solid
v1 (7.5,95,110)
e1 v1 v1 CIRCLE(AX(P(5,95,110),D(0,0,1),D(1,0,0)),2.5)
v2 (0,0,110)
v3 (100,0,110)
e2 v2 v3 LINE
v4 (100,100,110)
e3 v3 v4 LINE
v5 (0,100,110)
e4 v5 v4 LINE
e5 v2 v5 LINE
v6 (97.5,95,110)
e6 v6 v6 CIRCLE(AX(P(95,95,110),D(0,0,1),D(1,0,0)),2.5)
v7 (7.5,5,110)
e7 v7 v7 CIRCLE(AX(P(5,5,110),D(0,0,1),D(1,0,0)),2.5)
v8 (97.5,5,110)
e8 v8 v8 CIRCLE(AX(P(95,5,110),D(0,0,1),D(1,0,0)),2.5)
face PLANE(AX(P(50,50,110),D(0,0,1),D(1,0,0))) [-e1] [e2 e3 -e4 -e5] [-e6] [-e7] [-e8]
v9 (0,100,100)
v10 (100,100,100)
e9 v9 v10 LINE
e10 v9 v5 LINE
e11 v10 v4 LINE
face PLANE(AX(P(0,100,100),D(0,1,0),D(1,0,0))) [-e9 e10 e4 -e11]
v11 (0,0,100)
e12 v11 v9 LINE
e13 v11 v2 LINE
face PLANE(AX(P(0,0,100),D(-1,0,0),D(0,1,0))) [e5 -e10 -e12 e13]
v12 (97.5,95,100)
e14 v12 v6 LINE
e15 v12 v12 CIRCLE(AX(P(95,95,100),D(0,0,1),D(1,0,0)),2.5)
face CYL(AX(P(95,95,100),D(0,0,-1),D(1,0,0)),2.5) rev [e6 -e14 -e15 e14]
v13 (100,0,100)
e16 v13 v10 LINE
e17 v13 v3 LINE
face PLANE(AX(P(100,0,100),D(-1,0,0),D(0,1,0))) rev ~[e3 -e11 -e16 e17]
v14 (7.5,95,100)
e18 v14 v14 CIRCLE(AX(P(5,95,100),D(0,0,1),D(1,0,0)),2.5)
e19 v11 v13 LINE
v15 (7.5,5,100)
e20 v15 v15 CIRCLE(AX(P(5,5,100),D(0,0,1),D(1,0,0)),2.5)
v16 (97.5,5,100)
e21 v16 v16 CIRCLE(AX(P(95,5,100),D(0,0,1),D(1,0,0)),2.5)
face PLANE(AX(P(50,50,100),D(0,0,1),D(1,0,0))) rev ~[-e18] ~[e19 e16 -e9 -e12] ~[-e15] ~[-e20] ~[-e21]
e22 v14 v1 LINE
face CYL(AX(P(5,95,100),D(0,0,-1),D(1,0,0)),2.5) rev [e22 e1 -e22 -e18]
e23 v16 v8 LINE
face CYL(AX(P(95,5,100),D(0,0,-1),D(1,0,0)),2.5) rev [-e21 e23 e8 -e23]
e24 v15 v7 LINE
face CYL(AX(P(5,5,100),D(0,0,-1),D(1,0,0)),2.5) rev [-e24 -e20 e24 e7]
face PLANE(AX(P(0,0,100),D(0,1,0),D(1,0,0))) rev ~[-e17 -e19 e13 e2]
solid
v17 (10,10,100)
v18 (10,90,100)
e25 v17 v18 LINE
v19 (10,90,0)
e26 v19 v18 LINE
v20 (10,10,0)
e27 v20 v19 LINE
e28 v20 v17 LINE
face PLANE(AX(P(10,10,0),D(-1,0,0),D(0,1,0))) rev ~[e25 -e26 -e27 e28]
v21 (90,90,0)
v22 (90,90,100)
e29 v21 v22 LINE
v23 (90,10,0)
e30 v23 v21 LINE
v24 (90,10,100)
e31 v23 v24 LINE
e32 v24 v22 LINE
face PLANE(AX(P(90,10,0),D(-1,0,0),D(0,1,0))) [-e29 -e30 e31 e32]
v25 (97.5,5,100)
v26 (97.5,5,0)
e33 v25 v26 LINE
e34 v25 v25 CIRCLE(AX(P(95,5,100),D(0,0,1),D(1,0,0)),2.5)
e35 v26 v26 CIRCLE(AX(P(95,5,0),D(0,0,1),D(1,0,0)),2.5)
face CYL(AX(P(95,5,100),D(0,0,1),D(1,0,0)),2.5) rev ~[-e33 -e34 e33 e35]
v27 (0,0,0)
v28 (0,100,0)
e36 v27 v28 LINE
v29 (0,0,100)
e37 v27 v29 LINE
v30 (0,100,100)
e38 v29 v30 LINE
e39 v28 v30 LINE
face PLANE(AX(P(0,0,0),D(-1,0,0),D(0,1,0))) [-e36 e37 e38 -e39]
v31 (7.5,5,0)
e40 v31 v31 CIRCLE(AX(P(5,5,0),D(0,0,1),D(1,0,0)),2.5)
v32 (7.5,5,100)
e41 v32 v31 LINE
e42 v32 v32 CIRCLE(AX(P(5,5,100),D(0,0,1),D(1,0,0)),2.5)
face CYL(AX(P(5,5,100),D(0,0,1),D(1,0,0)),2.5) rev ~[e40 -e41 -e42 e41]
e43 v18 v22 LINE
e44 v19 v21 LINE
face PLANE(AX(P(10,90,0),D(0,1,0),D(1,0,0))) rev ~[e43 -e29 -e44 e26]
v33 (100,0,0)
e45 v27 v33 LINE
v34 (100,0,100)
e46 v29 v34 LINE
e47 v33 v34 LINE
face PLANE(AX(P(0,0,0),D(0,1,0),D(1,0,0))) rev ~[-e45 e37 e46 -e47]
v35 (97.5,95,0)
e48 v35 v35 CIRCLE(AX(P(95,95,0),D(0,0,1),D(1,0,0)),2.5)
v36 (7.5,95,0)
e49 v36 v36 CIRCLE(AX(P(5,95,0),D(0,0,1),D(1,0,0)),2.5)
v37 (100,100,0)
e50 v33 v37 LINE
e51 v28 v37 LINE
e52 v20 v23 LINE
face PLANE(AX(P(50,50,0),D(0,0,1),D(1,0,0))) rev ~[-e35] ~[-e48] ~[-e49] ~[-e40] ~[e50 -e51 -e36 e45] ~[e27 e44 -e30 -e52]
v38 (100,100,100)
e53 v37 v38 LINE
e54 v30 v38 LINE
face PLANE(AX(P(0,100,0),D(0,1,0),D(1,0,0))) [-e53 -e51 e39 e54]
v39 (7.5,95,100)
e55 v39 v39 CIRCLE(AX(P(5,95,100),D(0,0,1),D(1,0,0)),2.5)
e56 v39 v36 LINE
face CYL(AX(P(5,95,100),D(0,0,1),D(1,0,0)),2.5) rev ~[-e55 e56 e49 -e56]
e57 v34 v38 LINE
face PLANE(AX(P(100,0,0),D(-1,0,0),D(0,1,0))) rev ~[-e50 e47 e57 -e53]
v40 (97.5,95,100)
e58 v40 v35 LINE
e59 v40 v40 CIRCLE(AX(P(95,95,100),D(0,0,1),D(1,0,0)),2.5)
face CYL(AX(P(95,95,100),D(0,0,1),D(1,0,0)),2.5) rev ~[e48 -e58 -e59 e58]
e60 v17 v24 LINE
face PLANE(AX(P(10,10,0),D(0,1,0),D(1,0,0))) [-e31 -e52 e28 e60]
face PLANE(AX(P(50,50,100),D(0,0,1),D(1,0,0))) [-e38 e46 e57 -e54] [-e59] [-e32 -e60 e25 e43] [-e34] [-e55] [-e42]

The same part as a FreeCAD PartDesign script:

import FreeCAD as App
import Part
import Sketcher

V = App.Vector


def add_polygon(sketch, points):
    """Adds a closed chain of lines whose ends are joined by coincident constraints."""
    first, n = sketch.GeometryCount, len(points)
    for a, b in zip(points, points[1:] + points[:1]):
        sketch.addGeometry(Part.LineSegment(App.Vector(*a, 0), App.Vector(*b, 0)), False)
    for i in range(n):
        sketch.addConstraint(Sketcher.Constraint("Coincident", first + i, 2, first + (i + 1) % n, 1))

doc = App.newDocument("Part")
params = doc.addObject("Spreadsheet::Sheet", "Params")
for row, (alias, value) in enumerate([
    ("sketch1_width", "100 mm"),
    ("sketch1_width2", "80 mm"),
    ("pad1_length", "100 mm"),
    ("sketch2_diameter", "5 mm"),
    ("sketch3_diameter", "5 mm"),
    ("sketch3_width", "100 mm"),
    ("pad2_length", "10 mm"),
], start=1):
    params.set(f"A{row}", alias)
    params.set(f"B{row}", "=" + value)
    params.setAlias(f"B{row}", alias)

body = doc.addObject("PartDesign::Body", "Body")

# Sketch on XY plane
sketch1 = body.newObject("Sketcher::SketchObject", "Sketch")
sketch1.AttachmentSupport = (doc.getObject("XY_Plane"), [""])
sketch1.MapMode = "FlatFace"
add_polygon(sketch1, [(0, 100), (0, 0), (100, 0), (100, 100)])  # lines 0-3
add_polygon(sketch1, [(90, 10), (10, 10), (10, 90), (90, 90)])  # lines 4-7
sketch1.addConstraint(Sketcher.Constraint("Vertical", 0))
sketch1.addConstraint(Sketcher.Constraint("Horizontal", 1))
sketch1.addConstraint(Sketcher.Constraint("Vertical", 2))
sketch1.addConstraint(Sketcher.Constraint("Horizontal", 3))
sketch1.addConstraint(Sketcher.Constraint("Horizontal", 4))
sketch1.addConstraint(Sketcher.Constraint("Vertical", 5))
sketch1.addConstraint(Sketcher.Constraint("Horizontal", 6))
sketch1.addConstraint(Sketcher.Constraint("Vertical", 7))
sketch1.addConstraint(Sketcher.Constraint("Coincident", 0, 2, -1, 1))
sketch1.addConstraint(Sketcher.Constraint("Equal", 3, 0))
sketch1.addConstraint(Sketcher.Constraint("Equal", 6, 5))
sketch1.addConstraint(Sketcher.Constraint("DistanceX", 1, 1, 1, 2, 100.0))
sketch1.addConstraint(Sketcher.Constraint("DistanceX", 4, 2, 4, 1, 80.0))
sketch1.addConstraint(Sketcher.Constraint("DistanceX", -1, 1, 4, 2, 10.0))
sketch1.addConstraint(Sketcher.Constraint("DistanceY", -1, 1, 4, 2, 10.0))
sketch1.setExpression("Constraints[19]", "Params.sketch1_width")
sketch1.setExpression("Constraints[20]", "Params.sketch1_width2")
pad1 = body.newObject("PartDesign::Pad", "Pad")
pad1.Profile = sketch1
pad1.setExpression("Length", "Params.pad1_length")

# Sketch on XY plane
sketch2 = body.newObject("Sketcher::SketchObject", "Sketch001")
sketch2.AttachmentSupport = (doc.getObject("XY_Plane"), [""])
sketch2.MapMode = "FlatFace"
sketch2.AttachmentOffset = App.Placement(V(0, 0, 100), App.Rotation())
sketch2.addGeometry(Part.Circle(V(5, 95, 0), V(0, 0, 1), 2.5), False)
sketch2.addGeometry(Part.Circle(V(95, 95, 0), V(0, 0, 1), 2.5), False)
sketch2.addGeometry(Part.Circle(V(5, 5, 0), V(0, 0, 1), 2.5), False)
sketch2.addGeometry(Part.Circle(V(95, 5, 0), V(0, 0, 1), 2.5), False)
sketch2.addConstraint(Sketcher.Constraint("Equal", 0, 1))
sketch2.addConstraint(Sketcher.Constraint("Equal", 1, 2))
sketch2.addConstraint(Sketcher.Constraint("Equal", 2, 3))
sketch2.addConstraint(Sketcher.Constraint("Horizontal", 0, 3, 1, 3))
sketch2.addConstraint(Sketcher.Constraint("Horizontal", 2, 3, 3, 3))
sketch2.addConstraint(Sketcher.Constraint("Vertical", 0, 3, 2, 3))
sketch2.addConstraint(Sketcher.Constraint("Vertical", 1, 3, 3, 3))
sketch2.addConstraint(Sketcher.Constraint("Diameter", 0, 5.0))
sketch2.addConstraint(Sketcher.Constraint("DistanceX", -1, 1, 0, 3, 5.0))
sketch2.addConstraint(Sketcher.Constraint("DistanceY", -1, 1, 0, 3, 95.0))
sketch2.addConstraint(Sketcher.Constraint("DistanceX", -1, 1, 1, 3, 95.0))
sketch2.addConstraint(Sketcher.Constraint("DistanceY", -1, 1, 2, 3, 5.0))
sketch2.setExpression("Constraints[7]", "Params.sketch2_diameter")
pocket1 = body.newObject("PartDesign::Pocket", "Pocket")
pocket1.Profile = sketch2
pocket1.Type = "ThroughAll"
body2 = doc.addObject("PartDesign::Body", "Body001")

# Sketch on XY plane
sketch3 = body2.newObject("Sketcher::SketchObject", "Sketch002")
sketch3.AttachmentSupport = (doc.getObject("XY_Plane001"), [""])
sketch3.MapMode = "FlatFace"
sketch3.AttachmentOffset = App.Placement(V(0, 0, 100), App.Rotation())
add_polygon(sketch3, [(0, 100), (0, 0), (100, 0), (100, 100)])  # lines 0-3
sketch3.addGeometry(Part.Circle(V(5, 5, 0), V(0, 0, 1), 2.5), False)  # 4
sketch3.addGeometry(Part.Circle(V(95, 5, 0), V(0, 0, 1), 2.5), False)  # 5
sketch3.addGeometry(Part.Circle(V(5, 95, 0), V(0, 0, 1), 2.5), False)  # 6
sketch3.addGeometry(Part.Circle(V(95, 95, 0), V(0, 0, 1), 2.5), False)  # 7
sketch3.addConstraint(Sketcher.Constraint("Vertical", 0))
sketch3.addConstraint(Sketcher.Constraint("Horizontal", 1))
sketch3.addConstraint(Sketcher.Constraint("Vertical", 2))
sketch3.addConstraint(Sketcher.Constraint("Horizontal", 3))
sketch3.addConstraint(Sketcher.Constraint("Coincident", 0, 2, -1, 1))
sketch3.addConstraint(Sketcher.Constraint("Equal", 4, 5))
sketch3.addConstraint(Sketcher.Constraint("Equal", 5, 6))
sketch3.addConstraint(Sketcher.Constraint("Equal", 6, 7))
sketch3.addConstraint(Sketcher.Constraint("Horizontal", 4, 3, 5, 3))
sketch3.addConstraint(Sketcher.Constraint("Horizontal", 6, 3, 7, 3))
sketch3.addConstraint(Sketcher.Constraint("Vertical", 4, 3, 6, 3))
sketch3.addConstraint(Sketcher.Constraint("Vertical", 5, 3, 7, 3))
sketch3.addConstraint(Sketcher.Constraint("Equal", 3, 0))
sketch3.addConstraint(Sketcher.Constraint("Diameter", 4, 5.0))
sketch3.addConstraint(Sketcher.Constraint("DistanceX", 1, 1, 1, 2, 100.0))
sketch3.addConstraint(Sketcher.Constraint("DistanceX", -1, 1, 4, 3, 5.0))
sketch3.addConstraint(Sketcher.Constraint("DistanceY", -1, 1, 4, 3, 5.0))
sketch3.addConstraint(Sketcher.Constraint("DistanceX", -1, 1, 5, 3, 95.0))
sketch3.addConstraint(Sketcher.Constraint("DistanceY", -1, 1, 6, 3, 95.0))
sketch3.setExpression("Constraints[17]", "Params.sketch3_diameter")
sketch3.setExpression("Constraints[18]", "Params.sketch3_width")
pad2 = body2.newObject("PartDesign::Pad", "Pad001")
pad2.Profile = sketch3
pad2.setExpression("Length", "Params.pad2_length")

doc.recompute()
